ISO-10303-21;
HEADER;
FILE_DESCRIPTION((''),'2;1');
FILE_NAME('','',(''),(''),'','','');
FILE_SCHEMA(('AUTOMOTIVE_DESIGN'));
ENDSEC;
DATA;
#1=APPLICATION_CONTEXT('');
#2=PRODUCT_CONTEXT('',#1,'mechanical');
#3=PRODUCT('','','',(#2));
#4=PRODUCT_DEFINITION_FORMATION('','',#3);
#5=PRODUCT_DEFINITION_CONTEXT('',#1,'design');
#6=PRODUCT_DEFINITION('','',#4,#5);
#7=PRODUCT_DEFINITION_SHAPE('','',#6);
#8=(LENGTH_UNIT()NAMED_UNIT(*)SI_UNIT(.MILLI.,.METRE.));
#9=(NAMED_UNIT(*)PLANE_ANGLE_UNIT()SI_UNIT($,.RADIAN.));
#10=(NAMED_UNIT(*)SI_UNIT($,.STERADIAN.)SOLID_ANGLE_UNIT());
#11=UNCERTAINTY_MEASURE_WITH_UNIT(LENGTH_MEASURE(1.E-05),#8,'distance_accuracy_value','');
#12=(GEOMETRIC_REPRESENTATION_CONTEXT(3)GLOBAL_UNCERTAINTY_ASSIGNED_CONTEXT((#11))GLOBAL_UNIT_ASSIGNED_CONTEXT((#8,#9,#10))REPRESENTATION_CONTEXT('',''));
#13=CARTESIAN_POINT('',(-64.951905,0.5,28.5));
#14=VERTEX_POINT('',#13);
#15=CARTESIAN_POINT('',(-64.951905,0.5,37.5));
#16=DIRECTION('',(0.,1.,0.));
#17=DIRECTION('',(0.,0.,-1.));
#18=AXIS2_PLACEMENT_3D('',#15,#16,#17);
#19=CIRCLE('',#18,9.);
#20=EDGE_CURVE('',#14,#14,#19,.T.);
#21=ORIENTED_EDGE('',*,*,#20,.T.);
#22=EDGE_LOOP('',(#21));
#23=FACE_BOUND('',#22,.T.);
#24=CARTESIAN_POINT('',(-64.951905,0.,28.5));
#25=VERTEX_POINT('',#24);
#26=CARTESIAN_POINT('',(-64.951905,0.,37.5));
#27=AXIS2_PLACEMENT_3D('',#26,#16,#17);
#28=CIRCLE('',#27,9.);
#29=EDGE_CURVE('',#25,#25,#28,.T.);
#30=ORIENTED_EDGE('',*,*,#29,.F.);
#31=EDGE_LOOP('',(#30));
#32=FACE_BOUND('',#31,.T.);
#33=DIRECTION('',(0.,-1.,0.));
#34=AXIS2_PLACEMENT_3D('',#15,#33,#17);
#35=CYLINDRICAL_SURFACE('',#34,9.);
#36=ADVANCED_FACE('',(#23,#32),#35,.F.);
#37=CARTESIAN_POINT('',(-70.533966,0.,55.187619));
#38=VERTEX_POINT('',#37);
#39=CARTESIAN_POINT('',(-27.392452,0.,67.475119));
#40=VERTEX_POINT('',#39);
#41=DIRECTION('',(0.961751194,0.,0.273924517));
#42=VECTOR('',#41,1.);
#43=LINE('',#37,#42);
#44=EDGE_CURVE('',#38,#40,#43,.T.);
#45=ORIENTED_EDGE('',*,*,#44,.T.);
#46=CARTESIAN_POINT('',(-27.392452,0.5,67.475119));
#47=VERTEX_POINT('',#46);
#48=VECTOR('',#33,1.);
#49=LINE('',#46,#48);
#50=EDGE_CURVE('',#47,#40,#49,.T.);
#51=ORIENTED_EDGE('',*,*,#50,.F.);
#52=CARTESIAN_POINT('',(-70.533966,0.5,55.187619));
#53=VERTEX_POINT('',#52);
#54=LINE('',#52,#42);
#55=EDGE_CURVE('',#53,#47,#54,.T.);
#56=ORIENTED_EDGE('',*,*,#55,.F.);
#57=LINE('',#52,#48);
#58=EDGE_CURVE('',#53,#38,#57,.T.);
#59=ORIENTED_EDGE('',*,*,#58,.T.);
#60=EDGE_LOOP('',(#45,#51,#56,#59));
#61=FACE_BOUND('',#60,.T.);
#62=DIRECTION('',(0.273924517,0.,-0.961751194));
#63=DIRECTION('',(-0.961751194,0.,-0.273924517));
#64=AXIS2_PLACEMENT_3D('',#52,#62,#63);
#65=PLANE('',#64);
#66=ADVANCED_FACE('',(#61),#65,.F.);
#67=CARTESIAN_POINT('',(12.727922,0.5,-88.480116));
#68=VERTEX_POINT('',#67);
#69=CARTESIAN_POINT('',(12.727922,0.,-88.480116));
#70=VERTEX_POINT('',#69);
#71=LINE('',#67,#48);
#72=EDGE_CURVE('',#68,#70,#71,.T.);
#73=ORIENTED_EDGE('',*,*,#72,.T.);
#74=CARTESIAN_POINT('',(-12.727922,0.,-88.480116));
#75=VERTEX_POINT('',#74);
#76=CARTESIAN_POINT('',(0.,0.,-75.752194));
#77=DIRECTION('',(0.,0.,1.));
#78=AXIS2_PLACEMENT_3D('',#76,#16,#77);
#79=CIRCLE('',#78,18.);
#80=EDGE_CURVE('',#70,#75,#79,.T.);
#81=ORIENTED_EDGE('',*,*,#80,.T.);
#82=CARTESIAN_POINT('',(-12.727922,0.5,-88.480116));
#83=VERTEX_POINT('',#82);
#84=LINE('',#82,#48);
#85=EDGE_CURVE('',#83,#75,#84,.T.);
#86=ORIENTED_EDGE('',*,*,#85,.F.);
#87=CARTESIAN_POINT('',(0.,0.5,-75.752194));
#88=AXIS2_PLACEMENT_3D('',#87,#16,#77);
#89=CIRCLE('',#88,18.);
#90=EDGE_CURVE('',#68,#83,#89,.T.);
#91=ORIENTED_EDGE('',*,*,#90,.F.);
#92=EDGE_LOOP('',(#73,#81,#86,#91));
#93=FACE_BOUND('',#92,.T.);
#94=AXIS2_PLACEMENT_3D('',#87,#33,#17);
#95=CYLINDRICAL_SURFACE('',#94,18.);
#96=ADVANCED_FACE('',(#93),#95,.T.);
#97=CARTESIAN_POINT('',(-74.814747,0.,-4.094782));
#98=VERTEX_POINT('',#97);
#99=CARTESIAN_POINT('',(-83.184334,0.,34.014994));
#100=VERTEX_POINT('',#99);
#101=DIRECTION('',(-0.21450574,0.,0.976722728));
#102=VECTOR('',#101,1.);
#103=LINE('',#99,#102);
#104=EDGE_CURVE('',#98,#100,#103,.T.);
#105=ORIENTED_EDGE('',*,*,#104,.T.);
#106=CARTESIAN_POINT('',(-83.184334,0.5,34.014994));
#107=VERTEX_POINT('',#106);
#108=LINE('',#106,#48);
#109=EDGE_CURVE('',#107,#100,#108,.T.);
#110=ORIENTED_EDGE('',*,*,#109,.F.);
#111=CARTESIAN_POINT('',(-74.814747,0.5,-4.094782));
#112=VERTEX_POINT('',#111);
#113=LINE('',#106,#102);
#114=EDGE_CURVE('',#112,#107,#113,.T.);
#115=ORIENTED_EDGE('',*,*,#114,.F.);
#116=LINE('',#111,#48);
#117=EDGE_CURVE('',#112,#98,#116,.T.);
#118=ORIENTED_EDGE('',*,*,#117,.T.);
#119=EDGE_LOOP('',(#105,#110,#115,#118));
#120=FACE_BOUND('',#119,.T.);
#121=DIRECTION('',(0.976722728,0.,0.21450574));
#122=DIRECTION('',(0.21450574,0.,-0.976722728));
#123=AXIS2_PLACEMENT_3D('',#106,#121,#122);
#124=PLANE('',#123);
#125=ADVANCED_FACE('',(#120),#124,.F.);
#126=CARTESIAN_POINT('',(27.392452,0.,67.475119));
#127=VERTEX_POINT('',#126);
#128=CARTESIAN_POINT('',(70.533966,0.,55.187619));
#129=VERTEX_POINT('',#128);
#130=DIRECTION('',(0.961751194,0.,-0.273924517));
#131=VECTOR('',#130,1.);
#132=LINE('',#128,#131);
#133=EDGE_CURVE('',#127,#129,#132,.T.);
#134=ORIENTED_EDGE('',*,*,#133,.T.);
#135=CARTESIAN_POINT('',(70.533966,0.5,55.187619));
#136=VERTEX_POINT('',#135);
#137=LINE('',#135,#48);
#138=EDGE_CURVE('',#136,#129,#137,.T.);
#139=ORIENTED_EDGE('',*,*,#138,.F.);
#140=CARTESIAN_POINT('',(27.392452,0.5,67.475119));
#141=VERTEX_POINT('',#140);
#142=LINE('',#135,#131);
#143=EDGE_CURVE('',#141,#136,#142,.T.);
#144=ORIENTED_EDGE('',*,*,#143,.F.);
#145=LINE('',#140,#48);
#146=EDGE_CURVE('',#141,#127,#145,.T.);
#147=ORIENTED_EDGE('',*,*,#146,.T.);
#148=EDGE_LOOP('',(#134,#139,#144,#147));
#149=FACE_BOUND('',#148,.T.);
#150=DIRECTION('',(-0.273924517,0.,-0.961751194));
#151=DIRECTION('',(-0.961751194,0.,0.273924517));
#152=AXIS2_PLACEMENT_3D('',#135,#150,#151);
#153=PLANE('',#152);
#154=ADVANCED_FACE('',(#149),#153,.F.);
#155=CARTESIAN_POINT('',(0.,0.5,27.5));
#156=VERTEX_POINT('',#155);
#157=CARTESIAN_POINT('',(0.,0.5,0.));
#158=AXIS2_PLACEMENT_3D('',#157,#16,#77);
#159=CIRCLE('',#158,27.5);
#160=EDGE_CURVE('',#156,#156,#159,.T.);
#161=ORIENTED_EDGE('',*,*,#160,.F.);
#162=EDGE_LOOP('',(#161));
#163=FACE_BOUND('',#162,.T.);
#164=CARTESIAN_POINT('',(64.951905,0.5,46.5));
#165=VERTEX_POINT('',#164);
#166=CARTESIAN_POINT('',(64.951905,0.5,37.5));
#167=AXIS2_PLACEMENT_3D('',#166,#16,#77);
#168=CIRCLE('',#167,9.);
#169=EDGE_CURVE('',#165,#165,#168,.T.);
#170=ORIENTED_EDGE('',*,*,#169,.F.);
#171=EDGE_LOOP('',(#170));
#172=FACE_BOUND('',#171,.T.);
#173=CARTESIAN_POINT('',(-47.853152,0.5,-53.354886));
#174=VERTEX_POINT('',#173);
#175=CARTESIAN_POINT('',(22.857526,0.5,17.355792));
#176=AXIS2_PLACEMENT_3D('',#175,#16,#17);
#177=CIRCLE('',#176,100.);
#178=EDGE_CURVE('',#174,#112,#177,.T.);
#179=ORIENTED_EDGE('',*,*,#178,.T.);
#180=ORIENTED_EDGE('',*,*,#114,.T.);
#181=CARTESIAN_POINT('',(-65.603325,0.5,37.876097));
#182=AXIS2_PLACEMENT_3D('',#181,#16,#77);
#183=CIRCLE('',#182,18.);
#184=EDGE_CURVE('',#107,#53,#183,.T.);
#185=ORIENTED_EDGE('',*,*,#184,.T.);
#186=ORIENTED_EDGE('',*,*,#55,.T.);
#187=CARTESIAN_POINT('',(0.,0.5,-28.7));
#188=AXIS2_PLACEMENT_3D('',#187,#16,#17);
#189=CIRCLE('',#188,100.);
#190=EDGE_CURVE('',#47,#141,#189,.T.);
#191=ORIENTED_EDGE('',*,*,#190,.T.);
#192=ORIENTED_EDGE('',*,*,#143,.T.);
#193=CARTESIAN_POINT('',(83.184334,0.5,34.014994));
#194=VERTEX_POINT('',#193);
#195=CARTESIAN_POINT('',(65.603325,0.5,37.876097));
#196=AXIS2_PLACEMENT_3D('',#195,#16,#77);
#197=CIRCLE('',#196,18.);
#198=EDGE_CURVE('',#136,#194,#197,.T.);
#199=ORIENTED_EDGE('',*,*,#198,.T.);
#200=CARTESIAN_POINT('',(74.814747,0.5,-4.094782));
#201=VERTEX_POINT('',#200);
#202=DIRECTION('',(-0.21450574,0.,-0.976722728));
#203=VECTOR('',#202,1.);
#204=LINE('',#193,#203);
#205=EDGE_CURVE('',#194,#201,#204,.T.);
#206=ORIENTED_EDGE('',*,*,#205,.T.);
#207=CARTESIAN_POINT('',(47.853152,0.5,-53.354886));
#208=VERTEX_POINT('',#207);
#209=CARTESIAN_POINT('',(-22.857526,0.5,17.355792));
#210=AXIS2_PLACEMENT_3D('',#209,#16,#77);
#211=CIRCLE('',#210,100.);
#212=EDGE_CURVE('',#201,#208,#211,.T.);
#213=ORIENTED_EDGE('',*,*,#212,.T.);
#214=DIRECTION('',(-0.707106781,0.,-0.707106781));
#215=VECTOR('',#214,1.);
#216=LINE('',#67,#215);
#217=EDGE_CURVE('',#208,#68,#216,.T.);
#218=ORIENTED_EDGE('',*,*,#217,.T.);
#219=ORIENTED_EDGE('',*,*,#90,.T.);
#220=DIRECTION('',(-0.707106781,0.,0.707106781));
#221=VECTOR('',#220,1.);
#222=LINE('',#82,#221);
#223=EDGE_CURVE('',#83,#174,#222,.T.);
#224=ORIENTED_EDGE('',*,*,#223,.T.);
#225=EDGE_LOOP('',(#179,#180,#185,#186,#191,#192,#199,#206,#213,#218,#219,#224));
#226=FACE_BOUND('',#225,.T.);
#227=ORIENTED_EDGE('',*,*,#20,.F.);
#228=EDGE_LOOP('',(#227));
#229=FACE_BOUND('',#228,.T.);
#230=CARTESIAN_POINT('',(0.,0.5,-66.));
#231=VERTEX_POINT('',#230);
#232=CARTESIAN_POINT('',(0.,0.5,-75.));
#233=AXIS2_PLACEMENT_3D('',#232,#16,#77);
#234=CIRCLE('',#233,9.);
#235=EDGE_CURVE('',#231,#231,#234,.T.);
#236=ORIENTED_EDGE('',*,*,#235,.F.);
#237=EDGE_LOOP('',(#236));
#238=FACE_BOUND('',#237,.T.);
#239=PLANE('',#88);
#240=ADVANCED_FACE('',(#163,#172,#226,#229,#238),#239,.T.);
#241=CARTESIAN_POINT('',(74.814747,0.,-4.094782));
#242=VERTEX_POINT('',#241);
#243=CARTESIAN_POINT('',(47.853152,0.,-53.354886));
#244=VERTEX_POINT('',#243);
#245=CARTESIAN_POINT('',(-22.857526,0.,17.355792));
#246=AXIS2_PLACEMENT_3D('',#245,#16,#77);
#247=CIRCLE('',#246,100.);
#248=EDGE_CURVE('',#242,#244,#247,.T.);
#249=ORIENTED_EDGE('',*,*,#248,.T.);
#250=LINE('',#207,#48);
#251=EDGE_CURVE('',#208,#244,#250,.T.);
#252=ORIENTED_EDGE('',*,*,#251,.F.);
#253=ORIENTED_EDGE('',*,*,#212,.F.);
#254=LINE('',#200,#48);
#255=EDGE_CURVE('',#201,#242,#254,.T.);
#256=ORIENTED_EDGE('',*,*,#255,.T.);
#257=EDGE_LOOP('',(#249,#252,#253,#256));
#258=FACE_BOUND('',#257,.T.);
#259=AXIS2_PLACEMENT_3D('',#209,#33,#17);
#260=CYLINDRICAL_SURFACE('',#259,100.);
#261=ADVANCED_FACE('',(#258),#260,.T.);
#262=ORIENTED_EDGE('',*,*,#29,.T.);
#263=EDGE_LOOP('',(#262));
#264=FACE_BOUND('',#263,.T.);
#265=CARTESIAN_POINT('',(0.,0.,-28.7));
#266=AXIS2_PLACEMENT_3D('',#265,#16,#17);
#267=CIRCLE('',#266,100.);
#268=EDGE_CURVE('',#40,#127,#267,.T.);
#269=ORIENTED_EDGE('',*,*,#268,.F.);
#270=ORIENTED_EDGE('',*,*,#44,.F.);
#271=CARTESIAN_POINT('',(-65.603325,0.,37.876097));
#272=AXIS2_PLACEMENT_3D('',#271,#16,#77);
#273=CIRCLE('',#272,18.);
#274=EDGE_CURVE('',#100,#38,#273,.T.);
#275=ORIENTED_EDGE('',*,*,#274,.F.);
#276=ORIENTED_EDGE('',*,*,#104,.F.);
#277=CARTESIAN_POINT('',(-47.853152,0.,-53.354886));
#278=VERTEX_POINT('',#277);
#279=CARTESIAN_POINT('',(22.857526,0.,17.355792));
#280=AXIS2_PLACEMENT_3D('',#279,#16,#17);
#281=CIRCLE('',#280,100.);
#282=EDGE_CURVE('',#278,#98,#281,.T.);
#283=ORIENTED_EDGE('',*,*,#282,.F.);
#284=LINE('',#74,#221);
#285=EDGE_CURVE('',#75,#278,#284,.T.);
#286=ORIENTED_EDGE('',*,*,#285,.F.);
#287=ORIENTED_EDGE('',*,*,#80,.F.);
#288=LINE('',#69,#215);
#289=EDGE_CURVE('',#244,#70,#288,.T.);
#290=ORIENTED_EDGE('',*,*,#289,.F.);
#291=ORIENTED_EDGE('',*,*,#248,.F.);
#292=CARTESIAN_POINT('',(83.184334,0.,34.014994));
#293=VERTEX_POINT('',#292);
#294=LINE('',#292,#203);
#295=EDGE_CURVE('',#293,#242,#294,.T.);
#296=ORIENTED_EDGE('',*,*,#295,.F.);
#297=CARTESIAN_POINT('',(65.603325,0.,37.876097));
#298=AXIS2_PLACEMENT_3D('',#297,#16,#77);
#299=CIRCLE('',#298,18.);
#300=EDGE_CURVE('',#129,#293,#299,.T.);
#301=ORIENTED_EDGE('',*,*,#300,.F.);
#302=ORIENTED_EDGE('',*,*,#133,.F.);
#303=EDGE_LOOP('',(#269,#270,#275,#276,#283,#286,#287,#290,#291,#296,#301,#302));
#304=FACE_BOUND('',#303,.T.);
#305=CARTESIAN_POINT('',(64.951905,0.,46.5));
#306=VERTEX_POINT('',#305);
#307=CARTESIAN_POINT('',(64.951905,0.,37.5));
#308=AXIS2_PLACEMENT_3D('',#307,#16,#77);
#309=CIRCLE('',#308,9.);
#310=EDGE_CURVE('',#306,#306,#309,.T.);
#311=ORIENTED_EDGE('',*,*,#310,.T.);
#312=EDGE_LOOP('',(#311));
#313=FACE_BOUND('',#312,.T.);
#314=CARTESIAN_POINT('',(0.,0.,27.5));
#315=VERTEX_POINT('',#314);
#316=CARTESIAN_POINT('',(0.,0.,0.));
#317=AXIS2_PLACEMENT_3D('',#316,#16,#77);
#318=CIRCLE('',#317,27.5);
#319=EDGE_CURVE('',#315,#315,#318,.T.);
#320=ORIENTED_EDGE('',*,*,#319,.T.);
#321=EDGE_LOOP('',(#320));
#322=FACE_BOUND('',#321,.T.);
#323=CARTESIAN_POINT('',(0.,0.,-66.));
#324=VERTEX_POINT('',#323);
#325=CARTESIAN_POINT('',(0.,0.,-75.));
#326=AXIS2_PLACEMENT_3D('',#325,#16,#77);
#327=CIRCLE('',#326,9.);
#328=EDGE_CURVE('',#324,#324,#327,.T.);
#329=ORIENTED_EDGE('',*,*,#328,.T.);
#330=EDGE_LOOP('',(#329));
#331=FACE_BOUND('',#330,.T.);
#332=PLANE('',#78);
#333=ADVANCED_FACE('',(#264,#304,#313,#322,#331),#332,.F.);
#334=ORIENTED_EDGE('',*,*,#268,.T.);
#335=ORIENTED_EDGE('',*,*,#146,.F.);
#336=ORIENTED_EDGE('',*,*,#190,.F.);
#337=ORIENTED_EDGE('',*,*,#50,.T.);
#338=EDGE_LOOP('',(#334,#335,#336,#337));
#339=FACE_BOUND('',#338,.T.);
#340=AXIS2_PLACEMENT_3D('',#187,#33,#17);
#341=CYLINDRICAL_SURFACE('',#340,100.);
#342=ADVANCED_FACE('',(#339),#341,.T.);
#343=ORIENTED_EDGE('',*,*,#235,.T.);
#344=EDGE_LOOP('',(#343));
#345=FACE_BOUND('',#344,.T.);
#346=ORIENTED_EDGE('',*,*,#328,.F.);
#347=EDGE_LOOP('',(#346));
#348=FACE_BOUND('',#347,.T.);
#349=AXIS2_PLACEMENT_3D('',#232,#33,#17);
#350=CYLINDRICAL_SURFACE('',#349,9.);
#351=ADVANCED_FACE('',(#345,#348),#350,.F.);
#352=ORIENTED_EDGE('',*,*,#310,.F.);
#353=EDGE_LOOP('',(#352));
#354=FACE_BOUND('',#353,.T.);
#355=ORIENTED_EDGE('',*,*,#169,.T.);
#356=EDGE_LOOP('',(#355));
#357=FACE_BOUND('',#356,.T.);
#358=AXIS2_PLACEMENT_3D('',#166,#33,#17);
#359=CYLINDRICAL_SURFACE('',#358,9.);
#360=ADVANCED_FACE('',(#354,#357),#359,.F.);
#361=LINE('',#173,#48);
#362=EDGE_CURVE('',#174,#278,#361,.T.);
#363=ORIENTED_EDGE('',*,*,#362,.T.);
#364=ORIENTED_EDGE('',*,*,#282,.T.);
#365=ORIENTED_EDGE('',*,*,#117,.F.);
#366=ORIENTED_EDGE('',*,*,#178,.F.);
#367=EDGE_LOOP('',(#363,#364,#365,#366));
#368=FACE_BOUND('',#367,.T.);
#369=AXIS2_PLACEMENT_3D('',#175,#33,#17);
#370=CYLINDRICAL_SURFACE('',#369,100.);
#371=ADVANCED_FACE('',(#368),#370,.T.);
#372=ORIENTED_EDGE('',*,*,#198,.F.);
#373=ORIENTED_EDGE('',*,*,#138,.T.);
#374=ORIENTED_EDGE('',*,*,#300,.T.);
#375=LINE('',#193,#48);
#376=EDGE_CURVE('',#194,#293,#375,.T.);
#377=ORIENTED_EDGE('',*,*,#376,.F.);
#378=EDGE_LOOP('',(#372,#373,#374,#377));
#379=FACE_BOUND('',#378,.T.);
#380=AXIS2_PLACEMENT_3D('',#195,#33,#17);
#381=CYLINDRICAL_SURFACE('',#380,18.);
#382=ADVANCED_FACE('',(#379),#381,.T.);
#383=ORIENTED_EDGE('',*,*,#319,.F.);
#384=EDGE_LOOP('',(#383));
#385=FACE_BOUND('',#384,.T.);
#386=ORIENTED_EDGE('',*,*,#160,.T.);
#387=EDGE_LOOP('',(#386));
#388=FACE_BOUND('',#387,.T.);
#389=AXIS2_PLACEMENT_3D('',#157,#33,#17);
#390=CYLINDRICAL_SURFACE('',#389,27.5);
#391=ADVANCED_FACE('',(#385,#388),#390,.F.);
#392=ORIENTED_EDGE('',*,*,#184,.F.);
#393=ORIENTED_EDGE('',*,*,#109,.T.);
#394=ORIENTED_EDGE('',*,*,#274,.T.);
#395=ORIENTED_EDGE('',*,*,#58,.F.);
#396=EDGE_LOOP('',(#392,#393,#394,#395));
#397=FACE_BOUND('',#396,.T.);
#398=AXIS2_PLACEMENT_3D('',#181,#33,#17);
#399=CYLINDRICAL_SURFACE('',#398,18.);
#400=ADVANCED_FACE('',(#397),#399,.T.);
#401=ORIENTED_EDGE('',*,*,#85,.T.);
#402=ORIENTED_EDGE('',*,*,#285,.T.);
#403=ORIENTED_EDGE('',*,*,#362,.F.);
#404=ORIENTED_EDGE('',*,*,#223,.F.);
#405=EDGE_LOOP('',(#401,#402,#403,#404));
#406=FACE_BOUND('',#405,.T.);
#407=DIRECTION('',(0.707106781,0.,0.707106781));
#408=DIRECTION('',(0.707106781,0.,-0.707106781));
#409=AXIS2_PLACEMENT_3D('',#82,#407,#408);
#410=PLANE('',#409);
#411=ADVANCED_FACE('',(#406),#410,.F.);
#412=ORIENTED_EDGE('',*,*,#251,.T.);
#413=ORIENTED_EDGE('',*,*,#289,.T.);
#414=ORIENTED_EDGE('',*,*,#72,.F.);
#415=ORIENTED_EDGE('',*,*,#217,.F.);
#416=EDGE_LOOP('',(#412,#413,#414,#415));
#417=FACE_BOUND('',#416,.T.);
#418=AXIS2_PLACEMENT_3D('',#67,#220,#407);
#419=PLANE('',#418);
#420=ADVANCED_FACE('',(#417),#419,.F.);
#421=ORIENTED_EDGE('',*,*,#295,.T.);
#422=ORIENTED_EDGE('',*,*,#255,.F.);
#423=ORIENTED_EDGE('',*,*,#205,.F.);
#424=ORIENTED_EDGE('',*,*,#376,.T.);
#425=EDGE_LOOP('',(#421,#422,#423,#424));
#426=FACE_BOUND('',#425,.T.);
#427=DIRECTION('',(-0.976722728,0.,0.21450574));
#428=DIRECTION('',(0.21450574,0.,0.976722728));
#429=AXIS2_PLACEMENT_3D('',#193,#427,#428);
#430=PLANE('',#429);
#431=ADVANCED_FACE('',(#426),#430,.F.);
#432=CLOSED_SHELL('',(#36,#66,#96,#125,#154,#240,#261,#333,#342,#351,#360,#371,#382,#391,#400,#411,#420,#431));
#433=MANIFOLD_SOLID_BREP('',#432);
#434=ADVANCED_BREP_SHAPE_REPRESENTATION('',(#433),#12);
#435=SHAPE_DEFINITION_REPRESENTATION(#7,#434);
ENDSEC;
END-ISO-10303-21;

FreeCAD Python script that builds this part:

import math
import FreeCAD as App
import Part
import Sketcher
from FreeCAD import Vector

doc = App.newDocument("Part")
body = doc.addObject("PartDesign::Body", "Body")

sketch1 = body.newObject("Sketcher::SketchObject", "Sketch")
sketch1.AttachmentSupport = (doc.getObject("XZ_Plane"), [""])
sketch1.MapMode = "FlatFace"
sketch1.addGeometry([
    Part.LineSegment(Vector(83.184334, 34.014994, 0), Vector(74.814747, -4.094782, 0)),
    Part.ArcOfCircle(Part.Circle(Vector(-22.857526, 17.355792, 0), Vector(0, 0, 1), 100), math.radians(-45), math.radians(-12.386532)),
    Part.LineSegment(Vector(47.853152, -53.354886, 0), Vector(12.727922, -88.480116, 0)),
    Part.ArcOfCircle(Part.Circle(Vector(0, -75.752194, 0), Vector(0, 0, 1), 18), math.radians(-135), math.radians(-45)),
    Part.LineSegment(Vector(-12.727922, -88.480116, 0), Vector(-47.853152, -53.354886, 0)),
    Part.ArcOfCircle(Part.Circle(Vector(22.857526, 17.355792, 0), Vector(0, 0, 1), 100), math.radians(-167.613468), math.radians(-135)),
    Part.LineSegment(Vector(-74.814747, -4.094782, 0), Vector(-83.184334, 34.014994, 0)),
    Part.ArcOfCircle(Part.Circle(Vector(-65.603325, 37.876097, 0), Vector(0, 0, 1), 18), math.radians(105.897933), math.radians(192.386532)),
    Part.LineSegment(Vector(-70.533966, 55.187619, 0), Vector(-27.392452, 67.475119, 0)),
    Part.ArcOfCircle(Part.Circle(Vector(0, -28.7, 0), Vector(0, 0, 1), 100), math.radians(74.102067), math.radians(105.897933)),
    Part.LineSegment(Vector(27.392452, 67.475119, 0), Vector(70.533966, 55.187619, 0)),
    Part.ArcOfCircle(Part.Circle(Vector(65.603325, 37.876097, 0), Vector(0, 0, 1), 18), math.radians(-12.386532), math.radians(74.102067)),
    Part.Circle(Vector(-64.951905, 37.5, 0), Vector(0, 0, 1), 9),
    Part.Circle(Vector(0, 0, 0), Vector(0, 0, 1), 27.5),
    Part.Circle(Vector(64.951905, 37.5, 0), Vector(0, 0, 1), 9),
    Part.Circle(Vector(0, -75, 0), Vector(0, 0, 1), 9),
], False)
sketch1.addConstraint([
    Sketcher.Constraint("Tangent", 0, 2, 1, 2),
    Sketcher.Constraint("Tangent", 1, 1, 2, 1),
    Sketcher.Constraint("Tangent", 2, 2, 3, 2),
    Sketcher.Constraint("Tangent", 3, 1, 4, 1),
    Sketcher.Constraint("Tangent", 4, 2, 5, 2),
    Sketcher.Constraint("Tangent", 5, 1, 6, 1),
    Sketcher.Constraint("Tangent", 6, 2, 7, 2),
    Sketcher.Constraint("Tangent", 7, 1, 8, 1),
    Sketcher.Constraint("Tangent", 8, 2, 9, 2),
    Sketcher.Constraint("Tangent", 9, 1, 10, 1),
    Sketcher.Constraint("Tangent", 10, 2, 11, 2),
    Sketcher.Constraint("Tangent", 11, 1, 0, 1),
    Sketcher.Constraint("Coincident", 13, 3, -1, 1),
    Sketcher.Constraint("Equal", 1, 5),
    Sketcher.Constraint("Equal", 3, 7),
    Sketcher.Constraint("Equal", 5, 9),
    Sketcher.Constraint("Equal", 7, 11),
    Sketcher.Constraint("Equal", 12, 14),
    Sketcher.Constraint("Equal", 14, 15),
    Sketcher.Constraint("Symmetric", 1, 3, 5, 3, -2),
    Sketcher.Constraint("Symmetric", 7, 3, 11, 3, -2),
    Sketcher.Constraint("Symmetric", 12, 3, 14, 3, -2),
    Sketcher.Constraint("PointOnObject", 3, 3, -2),
    Sketcher.Constraint("PointOnObject", 9, 3, -2),
    Sketcher.Constraint("PointOnObject", 15, 3, -2),
    Sketcher.Constraint("Perpendicular", 2, 4),
    Sketcher.Constraint("Diameter", 12, 18.0),
    Sketcher.Constraint("Diameter", 13, 55.0),
    Sketcher.Constraint("Radius", 1, 100.0),
    Sketcher.Constraint("Radius", 3, 18.0),
    Sketcher.Constraint("DistanceY", 15, 3, -1, 1, 75.0),
    Sketcher.Constraint("DistanceY", 9, 3, -1, 1, 28.7),
    Sketcher.Constraint("DistanceY", -1, 1, 12, 3, 37.5),
    Sketcher.Constraint("DistanceX", 7, 3, 1, 3, 42.745799),
    Sketcher.Constraint("DistanceY", 1, 3, 6, 2, 16.659202),
    Sketcher.Constraint("DistanceY", 5, 1, 7, 1, 59.282401),
    Sketcher.Constraint("DistanceY", 7, 1, 8, 2, 12.287501),
    Sketcher.Constraint("DistanceX", 7, 3, 12, 3, 0.651419),
])
pad1 = body.newObject("PartDesign::Pad", "Pad")
pad1.Profile = sketch1
pad1.Length = 0.5
pad1.Reversed = True

doc.recompute()
